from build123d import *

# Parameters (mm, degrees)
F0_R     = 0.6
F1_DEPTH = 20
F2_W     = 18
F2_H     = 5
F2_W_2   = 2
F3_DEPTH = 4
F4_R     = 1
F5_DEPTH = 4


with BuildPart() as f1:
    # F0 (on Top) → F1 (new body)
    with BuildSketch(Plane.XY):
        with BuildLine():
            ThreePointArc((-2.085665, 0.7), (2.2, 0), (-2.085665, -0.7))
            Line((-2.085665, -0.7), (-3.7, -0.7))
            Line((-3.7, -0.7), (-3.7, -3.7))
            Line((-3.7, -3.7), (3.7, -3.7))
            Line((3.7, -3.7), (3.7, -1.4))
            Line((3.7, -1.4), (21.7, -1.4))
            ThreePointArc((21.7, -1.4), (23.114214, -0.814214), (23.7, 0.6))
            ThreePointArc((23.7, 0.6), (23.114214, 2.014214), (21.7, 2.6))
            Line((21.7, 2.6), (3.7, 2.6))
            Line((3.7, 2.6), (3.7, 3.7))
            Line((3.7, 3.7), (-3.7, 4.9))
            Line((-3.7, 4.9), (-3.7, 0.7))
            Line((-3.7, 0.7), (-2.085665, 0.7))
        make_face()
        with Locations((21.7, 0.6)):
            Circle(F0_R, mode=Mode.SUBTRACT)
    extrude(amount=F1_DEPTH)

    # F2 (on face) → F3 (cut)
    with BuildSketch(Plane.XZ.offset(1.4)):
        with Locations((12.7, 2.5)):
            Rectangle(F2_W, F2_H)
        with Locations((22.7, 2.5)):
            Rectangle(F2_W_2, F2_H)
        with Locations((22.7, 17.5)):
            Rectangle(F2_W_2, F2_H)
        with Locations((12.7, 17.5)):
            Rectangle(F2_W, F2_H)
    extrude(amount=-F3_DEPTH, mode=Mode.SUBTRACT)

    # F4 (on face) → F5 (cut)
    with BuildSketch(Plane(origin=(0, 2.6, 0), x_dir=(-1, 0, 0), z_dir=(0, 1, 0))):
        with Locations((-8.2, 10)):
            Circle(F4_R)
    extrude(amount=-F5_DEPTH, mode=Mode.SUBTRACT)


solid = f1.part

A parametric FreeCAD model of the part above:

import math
import FreeCAD as App
import Part
import Sketcher
from FreeCAD import Vector

doc = App.newDocument("Part")
body = doc.addObject("PartDesign::Body", "Body")

sketch1 = body.newObject("Sketcher::SketchObject", "Sketch")
sketch1.AttachmentSupport = (doc.getObject("XY_Plane"), [""])
sketch1.MapMode = "FlatFace"
sketch1.addGeometry([
    Part.ArcOfCircle(Part.Circle(Vector(0, 0, 0), Vector(0, 0, 1), 2.2), math.radians(-161), math.radians(161)),
    Part.LineSegment(Vector(-2.1, -0.7, 0), Vector(-3.7, -0.7, 0)),
    Part.LineSegment(Vector(-3.7, -0.7, 0), Vector(-3.7, -3.7, 0)),
    Part.LineSegment(Vector(-3.7, -3.7, 0), Vector(3.7, -3.7, 0)),
    Part.LineSegment(Vector(3.7, -3.7, 0), Vector(3.7, -1.4, 0)),
    Part.LineSegment(Vector(3.7, -1.4, 0), Vector(21.7, -1.4, 0)),
    Part.ArcOfCircle(Part.Circle(Vector(21.7, 0.6, 0), Vector(0, 0, 1), 2), math.radians(-90), math.radians(0)),
    Part.ArcOfCircle(Part.Circle(Vector(21.7, 0.6, 0), Vector(0, 0, 1), 2), math.radians(0), math.radians(90)),
    Part.LineSegment(Vector(21.7, 2.6, 0), Vector(3.7, 2.6, 0)),
    Part.LineSegment(Vector(3.7, 2.6, 0), Vector(3.7, 3.7, 0)),
    Part.LineSegment(Vector(3.7, 3.7, 0), Vector(-3.7, 4.9, 0)),
    Part.LineSegment(Vector(-3.7, 4.9, 0), Vector(-3.7, 0.7, 0)),
    Part.LineSegment(Vector(-3.7, 0.7, 0), Vector(-2.1, 0.7, 0)),
    Part.Circle(Vector(21.7, 0.6, 0), Vector(0, 0, 1), 0.6),
], False)
sketch1.addConstraint([
    Sketcher.Constraint("Coincident", 0, 1, 1, 1),
    Sketcher.Constraint("Coincident", 1, 2, 2, 1),
    Sketcher.Constraint("Coincident", 2, 2, 3, 1),
    Sketcher.Constraint("Coincident", 3, 2, 4, 1),
    Sketcher.Constraint("Coincident", 4, 2, 5, 1),
    Sketcher.Constraint("Tangent", 5, 2, 6, 1),
    Sketcher.Constraint("Tangent", 6, 2, 7, 1),
    Sketcher.Constraint("Tangent", 7, 2, 8, 1),
    Sketcher.Constraint("Coincident", 8, 2, 9, 1),
    Sketcher.Constraint("Coincident", 9, 2, 10, 1),
    Sketcher.Constraint("Coincident", 10, 2, 11, 1),
    Sketcher.Constraint("Coincident", 11, 2, 12, 1),
    Sketcher.Constraint("Coincident", 12, 2, 0, 2),
    Sketcher.Constraint("Horizontal", 1),
    Sketcher.Constraint("Vertical", 2),
    Sketcher.Constraint("Horizontal", 3),
    Sketcher.Constraint("Vertical", 4),
    Sketcher.Constraint("Horizontal", 5),
    Sketcher.Constraint("Horizontal", 8),
    Sketcher.Constraint("Vertical", 9),
    Sketcher.Constraint("Vertical", 11),
    Sketcher.Constraint("Horizontal", 12),
    Sketcher.Constraint("Coincident", 0, 3, -1, 1),
    Sketcher.Constraint("Coincident", 13, 3, 6, 3),
    Sketcher.Constraint("Equal", 6, 7),
    Sketcher.Constraint("Symmetric", 2, 2, 9, 2, -1, 1),
    Sketcher.Constraint("Symmetric", 1, 2, 11, 2, -1),
    Sketcher.Constraint("Horizontal", 13, 3, 6, 2),
    Sketcher.Constraint("Vertical", 4, 2, 8, 2),
    Sketcher.Constraint("Radius", 6, 1.999999),
    Sketcher.Constraint("Diameter", 13, 1.2),
    Sketcher.Constraint("Radius", 0, 2.2),
    Sketcher.Constraint("DistanceX", 5, 1, 5, 2, 18.0),
    Sketcher.Constraint("DistanceY", 2, 2, 2, 1, 3.0),
    Sketcher.Constraint("DistanceX", 3, 1, 3, 2, 7.4),
    Sketcher.Constraint("DistanceY", 4, 1, 4, 2, 2.3),
    Sketcher.Constraint("DistanceY", 9, 1, 9, 2, 1.1),
    Sketcher.Constraint("DistanceY", 11, 2, 11, 1, 4.2),
])
pad1 = body.newObject("PartDesign::Pad", "Pad")
pad1.Profile = sketch1
pad1.Length = 20

sketch2 = body.newObject("Sketcher::SketchObject", "Sketch001")
sketch2.AttachmentSupport = (doc.getObject("XZ_Plane"), [""])
sketch2.MapMode = "FlatFace"
sketch2.AttachmentOffset = App.Placement(Vector(0, 0, 1.4), App.Rotation())
sketch2.addGeometry([
    Part.LineSegment(Vector(4, 5, 0), Vector(4, 0, 0)),
    Part.LineSegment(Vector(4, 0, 0), Vector(24, 0, 0)),
    Part.LineSegment(Vector(24, 0, 0), Vector(24, 5, 0)),
    Part.LineSegment(Vector(24, 5, 0), Vector(4, 5, 0)),
    Part.LineSegment(Vector(24, 15, 0), Vector(24, 20, 0)),
    Part.LineSegment(Vector(24, 20, 0), Vector(4, 20, 0)),
    Part.LineSegment(Vector(4, 20, 0), Vector(4, 15, 0)),
    Part.LineSegment(Vector(4, 15, 0), Vector(24, 15, 0)),
], False)
sketch2.addConstraint([
    Sketcher.Constraint("Coincident", 0, 2, 1, 1),
    Sketcher.Constraint("Coincident", 1, 2, 2, 1),
    Sketcher.Constraint("Coincident", 2, 2, 3, 1),
    Sketcher.Constraint("Coincident", 3, 2, 0, 1),
    Sketcher.Constraint("Coincident", 4, 2, 5, 1),
    Sketcher.Constraint("Coincident", 5, 2, 6, 1),
    Sketcher.Constraint("Coincident", 6, 2, 7, 1),
    Sketcher.Constraint("Coincident", 7, 2, 4, 1),
    Sketcher.Constraint("Vertical", 0),
    Sketcher.Constraint("Horizontal", 1),
    Sketcher.Constraint("Vertical", 2),
    Sketcher.Constraint("Horizontal", 3),
    Sketcher.Constraint("Vertical", 4),
    Sketcher.Constraint("Horizontal", 5),
    Sketcher.Constraint("Vertical", 6),
    Sketcher.Constraint("Horizontal", 7),
    Sketcher.Constraint("PointOnObject", 0, 2, -1),
    Sketcher.Constraint("Vertical", 2, 2, 4, 2),
    Sketcher.Constraint("Vertical", 3, 2, 5, 2),
    Sketcher.Constraint("Equal", 2, 4),
    Sketcher.Constraint("DistanceX", 1, 1, 1, 2, 20.0),
    Sketcher.Constraint("DistanceY", 0, 2, 0, 1, 5.0),
    Sketcher.Constraint("DistanceY", -1, 1, 4, 2, 20.0),
    Sketcher.Constraint("DistanceX", -1, 1, 0, 2, 3.7),
])
pocket1 = body.newObject("PartDesign::Pocket", "Pocket")
pocket1.Profile = sketch2
pocket1.Length = 4

sketch3 = body.newObject("Sketcher::SketchObject", "Sketch002")
sketch3.AttachmentSupport = (doc.getObject("XZ_Plane"), [""])
sketch3.MapMode = "FlatFace"
sketch3.AttachmentOffset = App.Placement(Vector(0, 0, -2.6), App.Rotation())
sketch3.addGeometry(Part.Circle(Vector(8.2, 10, 0), Vector(0, 0, 1), 1), False)
sketch3.addConstraint([
    Sketcher.Constraint("Diameter", 0, 2.0),
    Sketcher.Constraint("DistanceY", -1, 1, 0, 3, 10.0),
    Sketcher.Constraint("DistanceX", -1, 1, 0, 3, 8.2),
])
pocket2 = body.newObject("PartDesign::Pocket", "Pocket001")
pocket2.Profile = sketch3
pocket2.Length = 4
pocket2.Reversed = True

doc.recompute()
